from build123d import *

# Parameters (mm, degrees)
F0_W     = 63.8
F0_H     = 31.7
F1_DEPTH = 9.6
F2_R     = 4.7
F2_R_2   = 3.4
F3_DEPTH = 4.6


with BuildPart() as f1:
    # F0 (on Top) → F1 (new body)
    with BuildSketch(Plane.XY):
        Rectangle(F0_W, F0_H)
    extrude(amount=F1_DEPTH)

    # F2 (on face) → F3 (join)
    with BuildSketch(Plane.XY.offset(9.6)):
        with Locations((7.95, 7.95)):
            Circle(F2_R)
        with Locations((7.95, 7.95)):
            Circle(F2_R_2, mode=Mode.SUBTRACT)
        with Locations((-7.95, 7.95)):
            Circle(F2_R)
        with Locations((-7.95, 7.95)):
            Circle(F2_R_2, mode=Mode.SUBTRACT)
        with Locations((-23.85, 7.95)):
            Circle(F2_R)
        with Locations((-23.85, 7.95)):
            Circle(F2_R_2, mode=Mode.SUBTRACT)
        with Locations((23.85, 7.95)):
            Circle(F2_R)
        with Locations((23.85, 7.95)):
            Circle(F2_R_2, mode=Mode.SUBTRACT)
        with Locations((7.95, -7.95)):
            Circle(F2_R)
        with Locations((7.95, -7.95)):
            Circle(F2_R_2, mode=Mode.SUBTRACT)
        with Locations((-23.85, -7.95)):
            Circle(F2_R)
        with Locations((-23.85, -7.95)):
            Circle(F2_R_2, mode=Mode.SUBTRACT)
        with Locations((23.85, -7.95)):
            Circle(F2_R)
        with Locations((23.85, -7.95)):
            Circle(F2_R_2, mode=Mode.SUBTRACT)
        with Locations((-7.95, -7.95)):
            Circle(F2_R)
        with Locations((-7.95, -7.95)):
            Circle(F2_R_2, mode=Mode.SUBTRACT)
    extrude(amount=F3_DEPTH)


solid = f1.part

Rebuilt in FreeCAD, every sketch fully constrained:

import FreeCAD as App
import Part
import Sketcher
Q = App.Units.Quantity


def add_polygon(sketch, points):
    """Adds a closed chain of lines whose ends are joined by coincident constraints."""
    first, n = sketch.GeometryCount, len(points)
    for a, b in zip(points, points[1:] + points[:1]):
        sketch.addGeometry(Part.LineSegment(App.Vector(*a, 0), App.Vector(*b, 0)), False)
    for i in range(n):
        sketch.addConstraint(Sketcher.Constraint("Coincident", first + i, 2, first + (i + 1) % n, 1))

doc = App.newDocument("Part")
body = doc.addObject("PartDesign::Body", "Body")

sketch1 = body.newObject("Sketcher::SketchObject", "Sketch")
sketch1.AttachmentSupport = (doc.getObject("XY_Plane"), [""])
sketch1.MapMode = "FlatFace"
add_polygon(sketch1, [(-32, 16), (-32, -16), (32, -16), (32, 16)])
sketch1.addConstraint(Sketcher.Constraint("Vertical", 0))
sketch1.addConstraint(Sketcher.Constraint("Horizontal", 1))
sketch1.addConstraint(Sketcher.Constraint("Vertical", 2))
sketch1.addConstraint(Sketcher.Constraint("Horizontal", 3))
sketch1.addConstraint(Sketcher.Constraint("Symmetric", 0, 2, 2, 2, -1, 1))
sketch1.addConstraint(Sketcher.Constraint("DistanceX", 1, 1, 1, 2, Q("63.8 mm")))
sketch1.addConstraint(Sketcher.Constraint("DistanceY", 0, 2, 0, 1, Q("31.7 mm")))
pad1 = body.newObject("PartDesign::Pad", "Pad")
pad1.Profile = sketch1
pad1.Length = 9.6

sketch2 = body.newObject("Sketcher::SketchObject", "Sketch001")
sketch2.AttachmentSupport = (doc.getObject("XY_Plane"), [""])
sketch2.MapMode = "FlatFace"
sketch2.AttachmentOffset = App.Placement(App.Vector(0, 0, 9.6), App.Rotation())
sketch2.addGeometry(Part.Circle(App.Vector(8, 8, 0), App.Vector(0, 0, 1), 4.7), False)
sketch2.addGeometry(Part.Circle(App.Vector(8, 8, 0), App.Vector(0, 0, 1), 3.4), False)
sketch2.addGeometry(Part.Circle(App.Vector(-8, 8, 0), App.Vector(0, 0, 1), 4.7), False)
sketch2.addGeometry(Part.Circle(App.Vector(-8, 8, 0), App.Vector(0, 0, 1), 3.4), False)
sketch2.addGeometry(Part.Circle(App.Vector(-23.9, 8, 0), App.Vector(0, 0, 1), 4.7), False)
sketch2.addGeometry(Part.Circle(App.Vector(-23.9, 8, 0), App.Vector(0, 0, 1), 3.4), False)
sketch2.addGeometry(Part.Circle(App.Vector(23.9, 8, 0), App.Vector(0, 0, 1), 4.7), False)
sketch2.addGeometry(Part.Circle(App.Vector(23.9, 8, 0), App.Vector(0, 0, 1), 3.4), False)
sketch2.addGeometry(Part.Circle(App.Vector(8, -8, 0), App.Vector(0, 0, 1), 4.7), False)
sketch2.addGeometry(Part.Circle(App.Vector(8, -8, 0), App.Vector(0, 0, 1), 3.4), False)
sketch2.addGeometry(Part.Circle(App.Vector(-23.9, -8, 0), App.Vector(0, 0, 1), 4.7), False)
sketch2.addGeometry(Part.Circle(App.Vector(-23.9, -8, 0), App.Vector(0, 0, 1), 3.4), False)
sketch2.addGeometry(Part.Circle(App.Vector(23.9, -8, 0), App.Vector(0, 0, 1), 4.7), False)
sketch2.addGeometry(Part.Circle(App.Vector(23.9, -8, 0), App.Vector(0, 0, 1), 3.4), False)
sketch2.addGeometry(Part.Circle(App.Vector(-8, -8, 0), App.Vector(0, 0, 1), 4.7), False)
sketch2.addGeometry(Part.Circle(App.Vector(-8, -8, 0), App.Vector(0, 0, 1), 3.4), False)
sketch2.addConstraint(Sketcher.Constraint("Coincident", 1, 3, 0, 3))
sketch2.addConstraint(Sketcher.Constraint("Coincident", 3, 3, 2, 3))
sketch2.addConstraint(Sketcher.Constraint("Coincident", 5, 3, 4, 3))
sketch2.addConstraint(Sketcher.Constraint("Coincident", 7, 3, 6, 3))
sketch2.addConstraint(Sketcher.Constraint("Coincident", 9, 3, 8, 3))
sketch2.addConstraint(Sketcher.Constraint("Coincident", 11, 3, 10, 3))
sketch2.addConstraint(Sketcher.Constraint("Coincident", 13, 3, 12, 3))
sketch2.addConstraint(Sketcher.Constraint("Coincident", 15, 3, 14, 3))
sketch2.addConstraint(Sketcher.Constraint("Equal", 0, 2))
sketch2.addConstraint(Sketcher.Constraint("Equal", 1, 3))
sketch2.addConstraint(Sketcher.Constraint("Equal", 2, 4))
sketch2.addConstraint(Sketcher.Constraint("Equal", 3, 5))
sketch2.addConstraint(Sketcher.Constraint("Equal", 4, 6))
sketch2.addConstraint(Sketcher.Constraint("Equal", 5, 7))
sketch2.addConstraint(Sketcher.Constraint("Equal", 6, 8))
sketch2.addConstraint(Sketcher.Constraint("Equal", 7, 9))
sketch2.addConstraint(Sketcher.Constraint("Equal", 8, 10))
sketch2.addConstraint(Sketcher.Constraint("Equal", 9, 11))
sketch2.addConstraint(Sketcher.Constraint("Equal", 10, 12))
sketch2.addConstraint(Sketcher.Constraint("Equal", 11, 13))
sketch2.addConstraint(Sketcher.Constraint("Equal", 12, 14))
sketch2.addConstraint(Sketcher.Constraint("Equal", 13, 15))
sketch2.addConstraint(Sketcher.Constraint("Symmetric", 2, 3, 8, 3, -1, 1))
sketch2.addConstraint(Sketcher.Constraint("Symmetric", 6, 3, 10, 3, -1, 1))
sketch2.addConstraint(Sketcher.Constraint("Symmetric", 4, 3, 12, 3, -1, 1))
sketch2.addConstraint(Sketcher.Constraint("Symmetric", 0, 3, 14, 3, -1, 1))
sketch2.addConstraint(Sketcher.Constraint("Symmetric", 0, 3, 2, 3, -2))
sketch2.addConstraint(Sketcher.Constraint("Symmetric", 4, 3, 6, 3, -2))
sketch2.addConstraint(Sketcher.Constraint("Horizontal", 3, 3, 4, 3))
sketch2.addConstraint(Sketcher.Constraint("Diameter", 0, Q("9.4 mm")))
sketch2.addConstraint(Sketcher.Constraint("Diameter", 1, Q("6.8 mm")))
sketch2.addConstraint(Sketcher.Constraint("DistanceX", 2, 3, 0, 3, Q("15.9 mm")))
sketch2.addConstraint(Sketcher.Constraint("DistanceX", 4, 3, 2, 3, Q("15.9 mm")))
sketch2.addConstraint(Sketcher.Constraint("DistanceY", 8, 3, 0, 3, Q("15.9 mm")))
pad2 = body.newObject("PartDesign::Pad", "Pad001")
pad2.Profile = sketch2
pad2.Length = 4.6

doc.recompute()
